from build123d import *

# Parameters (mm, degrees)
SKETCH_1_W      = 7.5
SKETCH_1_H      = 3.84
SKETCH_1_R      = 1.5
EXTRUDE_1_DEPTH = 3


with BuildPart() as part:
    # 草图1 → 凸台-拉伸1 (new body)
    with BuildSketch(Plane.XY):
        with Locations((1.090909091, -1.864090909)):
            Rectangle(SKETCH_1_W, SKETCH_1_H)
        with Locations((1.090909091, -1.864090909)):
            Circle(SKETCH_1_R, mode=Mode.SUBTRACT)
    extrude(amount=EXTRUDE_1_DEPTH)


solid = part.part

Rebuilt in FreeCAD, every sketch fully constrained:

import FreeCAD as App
import Part
import Sketcher

V = App.Vector


def add_polygon(sketch, points):
    """Adds a closed chain of lines whose ends are joined by coincident constraints."""
    first, n = sketch.GeometryCount, len(points)
    for a, b in zip(points, points[1:] + points[:1]):
        sketch.addGeometry(Part.LineSegment(App.Vector(*a, 0), App.Vector(*b, 0)), False)
    for i in range(n):
        sketch.addConstraint(Sketcher.Constraint("Coincident", first + i, 2, first + (i + 1) % n, 1))

doc = App.newDocument("Part")
body = doc.addObject("PartDesign::Body", "Body")

sketch1 = doc.addObject("Sketcher::SketchObject", "Sketch")
body.addObject(sketch1)
sketch1.AttachmentSupport = (doc.XY_Plane, [""])
sketch1.MapMode = "FlatFace"
add_polygon(sketch1, [(-2.7, 0.1), (-2.7, -3.8), (4.8, -3.8), (4.8, 0.1)])
sketch1.addGeometry(Part.Circle(V(1.1, -1.9, 0), V(0, 0, 1), 1.5), False)
sketch1.addConstraint(Sketcher.Constraint("Vertical", 0))
sketch1.addConstraint(Sketcher.Constraint("Horizontal", 1))
sketch1.addConstraint(Sketcher.Constraint("Vertical", 2))
sketch1.addConstraint(Sketcher.Constraint("Horizontal", 3))
sketch1.addConstraint(Sketcher.Constraint("Diameter", 4, 3.0))
sketch1.addConstraint(Sketcher.Constraint("DistanceX", 1, 1, 1, 2, 7.5))
sketch1.addConstraint(Sketcher.Constraint("DistanceY", 0, 2, 0, 1, 3.84))
sketch1.addConstraint(Sketcher.Constraint("DistanceX", 0, 2, 4, 3, 3.75))
sketch1.addConstraint(Sketcher.Constraint("DistanceY", 0, 2, 4, 3, 1.92))
sketch1.addConstraint(Sketcher.Constraint("DistanceX", -1, 1, 4, 3, 1.090909))
sketch1.addConstraint(Sketcher.Constraint("DistanceY", 4, 3, -1, 1, 1.864091))
pad1 = doc.addObject("PartDesign::Pad", "Pad")
body.addObject(pad1)
pad1.Profile = sketch1
pad1.Length = 3

doc.recompute()
